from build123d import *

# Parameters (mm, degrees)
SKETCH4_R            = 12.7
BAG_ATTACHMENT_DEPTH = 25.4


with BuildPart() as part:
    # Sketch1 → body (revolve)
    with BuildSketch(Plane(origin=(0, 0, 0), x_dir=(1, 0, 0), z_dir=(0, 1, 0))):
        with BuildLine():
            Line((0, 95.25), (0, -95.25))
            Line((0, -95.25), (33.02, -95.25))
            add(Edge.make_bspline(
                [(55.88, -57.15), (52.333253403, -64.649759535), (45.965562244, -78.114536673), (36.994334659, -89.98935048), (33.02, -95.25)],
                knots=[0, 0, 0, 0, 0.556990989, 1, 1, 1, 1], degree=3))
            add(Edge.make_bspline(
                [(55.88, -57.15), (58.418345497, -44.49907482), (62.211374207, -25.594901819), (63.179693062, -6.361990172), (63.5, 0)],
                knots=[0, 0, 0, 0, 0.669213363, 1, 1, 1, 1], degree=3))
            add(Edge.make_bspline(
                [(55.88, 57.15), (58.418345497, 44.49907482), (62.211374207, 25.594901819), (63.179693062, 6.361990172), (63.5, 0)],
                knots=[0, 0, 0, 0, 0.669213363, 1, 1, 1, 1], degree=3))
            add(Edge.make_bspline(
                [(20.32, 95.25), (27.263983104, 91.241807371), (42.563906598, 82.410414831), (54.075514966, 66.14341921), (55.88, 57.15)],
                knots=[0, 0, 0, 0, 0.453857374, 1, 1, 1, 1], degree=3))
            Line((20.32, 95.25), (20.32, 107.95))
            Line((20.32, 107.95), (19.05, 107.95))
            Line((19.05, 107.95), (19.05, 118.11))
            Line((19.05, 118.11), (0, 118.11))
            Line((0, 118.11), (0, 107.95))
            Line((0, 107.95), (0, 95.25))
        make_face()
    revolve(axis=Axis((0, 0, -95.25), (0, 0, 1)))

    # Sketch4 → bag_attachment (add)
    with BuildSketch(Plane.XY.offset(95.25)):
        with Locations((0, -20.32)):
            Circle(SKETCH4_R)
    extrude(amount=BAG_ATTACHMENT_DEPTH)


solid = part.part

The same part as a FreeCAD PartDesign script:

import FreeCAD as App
import Part
import Sketcher

V = App.Vector
Q = App.Units.Quantity

doc = App.newDocument("Part")
params = doc.addObject("Spreadsheet::Sheet", "Params")
for row, (alias, value) in enumerate([
    ("sketch1_height", "0.5 in"),
    ("sketch1_height2", "0.4 in"),
    ("sketch1_width", "0.05 in"),
    ("revolution_angle", "360 deg"),
    ("sketch2_diameter", "1 in"),
    ("pad1_length", "1 in"),
], start=1):
    params.set(f"A{row}", alias)
    params.set(f"B{row}", "=" + value)
    params.setAlias(f"B{row}", alias)

body = doc.addObject("PartDesign::Body", "Body")

# Sketch on XZ plane
sketch1 = body.newObject("Sketcher::SketchObject", "Sketch")
sketch1.AttachmentSupport = (doc.getObject("XZ_Plane"), [""])
sketch1.MapMode = "FlatFace"
sketch1.addGeometry([
    Part.LineSegment(V(0, 95.25, 0), V(33.02, 95.25, 0)),  # 0
    Part.BSplineCurve([V(55.88, 57.15, 0), V(52.333253, 64.64976, 0), V(45.965562, 78.114537, 0), V(36.994335, 89.98935, 0), V(33.02, 95.25, 0)], [4, 1, 4], [0, 0.556990989, 1], False, 3, [1, 1, 1, 1, 1], False),  # 1
    Part.BSplineCurve([V(55.88, 57.15, 0), V(58.418345, 44.499075, 0), V(62.211374, 25.594902, 0), V(63.179693, 6.36199, 0), V(63.5, 0, 0)], [4, 1, 4], [0, 0.669213363, 1], False, 3, [1, 1, 1, 1, 1], False),  # 2
    Part.BSplineCurve([V(55.88, -57.15, 0), V(58.418345, -44.499075, 0), V(62.211374, -25.594902, 0), V(63.179693, -6.36199, 0), V(63.5, 0, 0)], [4, 1, 4], [0, 0.669213363, 1], False, 3, [1, 1, 1, 1, 1], False),  # 3
    Part.BSplineCurve([V(20.32, -95.25, 0), V(27.263983, -91.241807, 0), V(42.563907, -82.410415, 0), V(54.075515, -66.143419, 0), V(55.88, -57.15, 0)], [4, 1, 4], [0, 0.453857374, 1], False, 3, [1, 1, 1, 1, 1], False),  # 4
    Part.LineSegment(V(20.32, -95.25, 0), V(20.32, -107.95, 0)),  # 5
    Part.LineSegment(V(20.32, -107.95, 0), V(19.05, -107.95, 0)),  # 6
    Part.LineSegment(V(19.05, -107.95, 0), V(19.05, -118.11, 0)),  # 7
    Part.LineSegment(V(19.05, -118.11, 0), V(0, -118.11, 0)),  # 8
    Part.LineSegment(V(0, -118.11, 0), V(0, 95.25, 0)),  # 9
], False)
sketch1.addConstraint([
    Sketcher.Constraint("Block", 1),
    Sketcher.Constraint("Block", 2),
    Sketcher.Constraint("Block", 3),
    Sketcher.Constraint("Block", 4),
    Sketcher.Constraint("Coincident", 0, 2, 1, 2),
    Sketcher.Constraint("Coincident", 4, 1, 5, 1),
    Sketcher.Constraint("Coincident", 5, 2, 6, 1),
    Sketcher.Constraint("Coincident", 6, 2, 7, 1),
    Sketcher.Constraint("Coincident", 7, 2, 8, 1),
    Sketcher.Constraint("Coincident", 8, 2, 9, 1),
    Sketcher.Constraint("Coincident", 9, 2, 0, 1),
    Sketcher.Constraint("Horizontal", 0),
    Sketcher.Constraint("Vertical", 5),
    Sketcher.Constraint("Horizontal", 6),
    Sketcher.Constraint("Vertical", 7),
    Sketcher.Constraint("Horizontal", 8),
    Sketcher.Constraint("Vertical", 9),
    Sketcher.Constraint("PointOnObject", 8, 2, -2),
    Sketcher.Constraint("DistanceY", 5, 2, 5, 1, Q("0.5 in")),
    Sketcher.Constraint("DistanceY", 7, 2, 7, 1, Q("0.4 in")),
    Sketcher.Constraint("DistanceX", 6, 2, 6, 1, Q("0.05 in")),
])
sketch1.setExpression("Constraints[18]", "Params.sketch1_height")
sketch1.setExpression("Constraints[19]", "Params.sketch1_height2")
sketch1.setExpression("Constraints[20]", "Params.sketch1_width")
revolution = body.newObject("PartDesign::Revolution", "Revolution")
revolution.Profile = sketch1
revolution.ReferenceAxis = (sketch1, ["V_Axis"])
revolution.setExpression("Angle", "Params.revolution_angle")

# Sketch on XY plane
sketch2 = body.newObject("Sketcher::SketchObject", "Sketch001")
sketch2.AttachmentSupport = (doc.getObject("XY_Plane"), [""])
sketch2.MapMode = "FlatFace"
sketch2.AttachmentOffset = App.Placement(V(0, 0, 3.75 * 25.4), App.Rotation())
sketch2.addGeometry(Part.Circle(V(0, -20, 0), V(0, 0, 1), 13), False)
sketch2.addConstraint([
    Sketcher.Constraint("PointOnObject", 0, 3, -2),
    Sketcher.Constraint("Diameter", 0, Q("1 in")),
    Sketcher.Constraint("DistanceY", 0, 3, -1, 1, Q("0.8 in")),
])
sketch2.setExpression("Constraints[1]", "Params.sketch2_diameter")
pad1 = body.newObject("PartDesign::Pad", "Pad")
pad1.Profile = sketch2
pad1.setExpression("Length", "Params.pad1_length")

doc.recompute()
